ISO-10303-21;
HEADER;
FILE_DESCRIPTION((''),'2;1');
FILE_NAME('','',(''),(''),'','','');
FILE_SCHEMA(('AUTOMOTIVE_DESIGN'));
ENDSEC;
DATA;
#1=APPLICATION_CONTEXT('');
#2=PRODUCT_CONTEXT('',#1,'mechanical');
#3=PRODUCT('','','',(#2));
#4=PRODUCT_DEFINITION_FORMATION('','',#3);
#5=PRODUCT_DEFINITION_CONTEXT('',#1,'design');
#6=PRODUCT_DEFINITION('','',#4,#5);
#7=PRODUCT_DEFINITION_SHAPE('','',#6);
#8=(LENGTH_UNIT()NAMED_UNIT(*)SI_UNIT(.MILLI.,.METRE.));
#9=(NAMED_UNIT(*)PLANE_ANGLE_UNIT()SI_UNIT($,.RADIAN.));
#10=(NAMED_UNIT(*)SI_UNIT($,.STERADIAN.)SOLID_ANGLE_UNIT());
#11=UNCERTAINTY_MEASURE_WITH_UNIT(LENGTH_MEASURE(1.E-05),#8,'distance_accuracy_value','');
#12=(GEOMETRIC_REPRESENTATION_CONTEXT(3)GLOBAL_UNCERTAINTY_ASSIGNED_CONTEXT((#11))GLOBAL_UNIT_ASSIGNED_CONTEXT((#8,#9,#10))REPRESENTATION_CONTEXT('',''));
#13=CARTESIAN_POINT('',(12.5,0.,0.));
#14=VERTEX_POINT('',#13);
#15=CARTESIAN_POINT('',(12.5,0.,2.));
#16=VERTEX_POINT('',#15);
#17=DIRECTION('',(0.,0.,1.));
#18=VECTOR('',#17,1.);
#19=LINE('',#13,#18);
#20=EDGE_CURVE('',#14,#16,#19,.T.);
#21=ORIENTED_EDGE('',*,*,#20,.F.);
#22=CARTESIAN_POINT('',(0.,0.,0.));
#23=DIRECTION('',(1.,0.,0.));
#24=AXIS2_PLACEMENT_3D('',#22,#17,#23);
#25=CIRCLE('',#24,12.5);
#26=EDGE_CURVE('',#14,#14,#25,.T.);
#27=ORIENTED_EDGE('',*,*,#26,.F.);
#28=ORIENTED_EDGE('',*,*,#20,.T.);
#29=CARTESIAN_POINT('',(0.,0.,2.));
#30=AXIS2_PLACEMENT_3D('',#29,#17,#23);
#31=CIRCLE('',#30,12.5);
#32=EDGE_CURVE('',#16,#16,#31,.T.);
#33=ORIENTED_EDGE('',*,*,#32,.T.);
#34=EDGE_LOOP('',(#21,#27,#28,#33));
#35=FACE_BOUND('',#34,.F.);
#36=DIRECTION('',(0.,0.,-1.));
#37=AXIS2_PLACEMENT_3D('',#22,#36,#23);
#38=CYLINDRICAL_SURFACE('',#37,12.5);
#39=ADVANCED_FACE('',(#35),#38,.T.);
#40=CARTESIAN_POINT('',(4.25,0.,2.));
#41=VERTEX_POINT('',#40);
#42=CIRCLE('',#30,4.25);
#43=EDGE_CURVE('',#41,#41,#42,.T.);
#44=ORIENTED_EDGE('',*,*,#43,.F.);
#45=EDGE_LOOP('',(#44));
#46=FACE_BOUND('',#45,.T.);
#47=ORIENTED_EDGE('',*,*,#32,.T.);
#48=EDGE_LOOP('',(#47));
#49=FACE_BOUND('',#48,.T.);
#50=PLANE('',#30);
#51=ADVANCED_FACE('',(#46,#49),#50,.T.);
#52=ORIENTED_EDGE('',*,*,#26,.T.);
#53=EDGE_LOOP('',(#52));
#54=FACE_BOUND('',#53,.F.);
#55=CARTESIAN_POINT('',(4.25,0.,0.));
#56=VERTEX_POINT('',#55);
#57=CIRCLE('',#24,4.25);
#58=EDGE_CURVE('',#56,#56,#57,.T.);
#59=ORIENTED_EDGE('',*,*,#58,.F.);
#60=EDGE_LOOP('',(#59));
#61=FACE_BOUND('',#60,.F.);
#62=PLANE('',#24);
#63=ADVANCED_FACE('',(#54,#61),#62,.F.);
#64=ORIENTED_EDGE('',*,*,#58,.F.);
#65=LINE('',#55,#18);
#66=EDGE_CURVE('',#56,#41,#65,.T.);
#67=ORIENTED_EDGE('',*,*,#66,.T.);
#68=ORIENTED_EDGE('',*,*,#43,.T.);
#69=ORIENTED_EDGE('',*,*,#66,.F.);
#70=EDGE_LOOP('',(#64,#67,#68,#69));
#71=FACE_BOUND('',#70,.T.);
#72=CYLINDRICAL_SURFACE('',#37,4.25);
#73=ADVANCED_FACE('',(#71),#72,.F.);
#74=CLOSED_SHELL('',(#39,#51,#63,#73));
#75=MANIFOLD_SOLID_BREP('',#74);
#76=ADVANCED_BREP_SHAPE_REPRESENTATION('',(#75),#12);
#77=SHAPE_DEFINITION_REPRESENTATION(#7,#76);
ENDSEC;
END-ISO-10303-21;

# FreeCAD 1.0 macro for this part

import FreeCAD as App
import Part
import Sketcher

V = App.Vector
Q = App.Units.Quantity

doc = App.newDocument("Part")
body = doc.addObject("PartDesign::Body", "Body")

sketch1 = body.newObject("Sketcher::SketchObject", "Sketch")
sketch1.AttachmentSupport = (doc.getObject("XY_Plane"), [""])
sketch1.MapMode = "FlatFace"
sketch1.addGeometry(Part.Circle(V(0, 0, 0), V(0, 0, 1), 12.5), False)
sketch1.addGeometry(Part.Circle(V(0, 0, 0), V(0, 0, 1), 4.2), False)
sketch1.addConstraint(Sketcher.Constraint("Coincident", 0, 3, -1, 1))
sketch1.addConstraint(Sketcher.Constraint("Coincident", 1, 3, -1, 1))
sketch1.addConstraint(Sketcher.Constraint("Diameter", 0, Q("25 mm")))
sketch1.addConstraint(Sketcher.Constraint("Diameter", 1, Q("8.5 mm")))
pad1 = body.newObject("PartDesign::Pad", "Pad")
pad1.Profile = sketch1
pad1.Length = 2

doc.recompute()
